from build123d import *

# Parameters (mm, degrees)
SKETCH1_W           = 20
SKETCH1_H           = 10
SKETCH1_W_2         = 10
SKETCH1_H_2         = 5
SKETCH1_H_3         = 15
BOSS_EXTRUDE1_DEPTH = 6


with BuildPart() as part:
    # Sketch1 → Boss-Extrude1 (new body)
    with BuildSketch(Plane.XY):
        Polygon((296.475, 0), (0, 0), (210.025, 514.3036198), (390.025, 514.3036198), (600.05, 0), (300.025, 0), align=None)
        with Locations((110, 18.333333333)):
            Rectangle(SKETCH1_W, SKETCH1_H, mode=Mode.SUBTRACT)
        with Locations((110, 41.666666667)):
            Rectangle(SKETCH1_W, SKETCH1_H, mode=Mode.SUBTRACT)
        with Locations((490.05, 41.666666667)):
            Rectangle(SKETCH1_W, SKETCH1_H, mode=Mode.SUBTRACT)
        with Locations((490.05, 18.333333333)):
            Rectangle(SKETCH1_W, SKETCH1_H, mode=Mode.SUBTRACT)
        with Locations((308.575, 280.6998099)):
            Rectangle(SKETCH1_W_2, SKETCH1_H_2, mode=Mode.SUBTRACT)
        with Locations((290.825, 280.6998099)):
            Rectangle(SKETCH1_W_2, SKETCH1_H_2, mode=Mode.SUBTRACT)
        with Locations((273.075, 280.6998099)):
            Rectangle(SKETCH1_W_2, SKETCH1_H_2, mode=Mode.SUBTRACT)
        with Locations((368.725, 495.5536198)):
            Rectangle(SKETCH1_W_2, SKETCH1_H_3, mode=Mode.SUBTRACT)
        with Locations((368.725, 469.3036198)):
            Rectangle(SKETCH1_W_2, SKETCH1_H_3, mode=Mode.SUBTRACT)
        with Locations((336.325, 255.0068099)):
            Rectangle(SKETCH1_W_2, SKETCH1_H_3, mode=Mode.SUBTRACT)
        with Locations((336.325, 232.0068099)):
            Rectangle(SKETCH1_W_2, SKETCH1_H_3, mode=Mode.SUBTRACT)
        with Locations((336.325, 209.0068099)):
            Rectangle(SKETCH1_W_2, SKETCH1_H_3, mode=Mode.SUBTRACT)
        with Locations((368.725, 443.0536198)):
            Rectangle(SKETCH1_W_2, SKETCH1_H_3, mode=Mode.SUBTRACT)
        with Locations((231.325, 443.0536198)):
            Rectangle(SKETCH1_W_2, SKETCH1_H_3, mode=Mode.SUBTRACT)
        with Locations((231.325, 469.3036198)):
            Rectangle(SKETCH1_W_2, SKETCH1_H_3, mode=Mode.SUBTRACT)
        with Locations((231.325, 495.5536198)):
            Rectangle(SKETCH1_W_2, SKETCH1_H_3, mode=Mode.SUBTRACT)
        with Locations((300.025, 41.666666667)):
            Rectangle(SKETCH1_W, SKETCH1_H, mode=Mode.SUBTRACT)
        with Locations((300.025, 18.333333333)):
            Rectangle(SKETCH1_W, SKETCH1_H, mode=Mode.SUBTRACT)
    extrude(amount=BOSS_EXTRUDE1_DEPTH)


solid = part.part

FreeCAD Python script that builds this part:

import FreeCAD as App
import Part
import Sketcher
from FreeCAD import Vector

doc = App.newDocument("Part")
body = doc.addObject("PartDesign::Body", "Body")

# Sketch on XY plane
sketch1 = body.newObject("Sketcher::SketchObject", "Sketch")
sketch1.AttachmentSupport = (doc.getObject("XY_Plane"), [""])
sketch1.MapMode = "FlatFace"
sketch1.addGeometry([
    Part.LineSegment(Vector(0, 0, 0), Vector(600, 0, 0)),  # 0
    Part.LineSegment(Vector(600, 0, 0), Vector(390, 514, 0)),  # 1
    Part.LineSegment(Vector(390, 514, 0), Vector(210, 514, 0)),  # 2
    Part.LineSegment(Vector(210, 514, 0), Vector(0, 0, 0)),  # 3
    Part.LineSegment(Vector(480, 13, 0), Vector(480, 23, 0)),  # 4
    Part.LineSegment(Vector(480, 23, 0), Vector(500, 23, 0)),  # 5
    Part.LineSegment(Vector(500, 23, 0), Vector(500, 13, 0)),  # 6
    Part.LineSegment(Vector(500, 13, 0), Vector(480, 13, 0)),  # 7
    Part.LineSegment(Vector(480, 37, 0), Vector(480, 47, 0)),  # 8
    Part.LineSegment(Vector(480, 47, 0), Vector(500, 47, 0)),  # 9
    Part.LineSegment(Vector(500, 47, 0), Vector(500, 37, 0)),  # 10
    Part.LineSegment(Vector(500, 37, 0), Vector(480, 37, 0)),  # 11
    Part.LineSegment(Vector(331, 202, 0), Vector(331, 217, 0)),  # 12
    Part.LineSegment(Vector(331, 217, 0), Vector(341, 217, 0)),  # 13
    Part.LineSegment(Vector(341, 217, 0), Vector(341, 202, 0)),  # 14
    Part.LineSegment(Vector(341, 202, 0), Vector(331, 202, 0)),  # 15
    Part.LineSegment(Vector(331, 225, 0), Vector(331, 240, 0)),  # 16
    Part.LineSegment(Vector(331, 240, 0), Vector(341, 240, 0)),  # 17
    Part.LineSegment(Vector(341, 240, 0), Vector(341, 225, 0)),  # 18
    Part.LineSegment(Vector(341, 225, 0), Vector(331, 225, 0)),  # 19
    Part.LineSegment(Vector(331, 248, 0), Vector(331, 263, 0)),  # 20
    Part.LineSegment(Vector(331, 263, 0), Vector(341, 263, 0)),  # 21
    Part.LineSegment(Vector(341, 263, 0), Vector(341, 248, 0)),  # 22
    Part.LineSegment(Vector(341, 248, 0), Vector(331, 248, 0)),  # 23
    Part.LineSegment(Vector(290, 13, 0), Vector(290, 23, 0)),  # 24
    Part.LineSegment(Vector(290, 23, 0), Vector(310, 23, 0)),  # 25
    Part.LineSegment(Vector(310, 23, 0), Vector(310, 13, 0)),  # 26
    Part.LineSegment(Vector(310, 13, 0), Vector(290, 13, 0)),  # 27
    Part.LineSegment(Vector(290, 37, 0), Vector(290, 47, 0)),  # 28
    Part.LineSegment(Vector(290, 47, 0), Vector(310, 47, 0)),  # 29
    Part.LineSegment(Vector(310, 47, 0), Vector(310, 37, 0)),  # 30
    Part.LineSegment(Vector(310, 37, 0), Vector(290, 37, 0)),  # 31
    Part.LineSegment(Vector(100, 13, 0), Vector(100, 23, 0)),  # 32
    Part.LineSegment(Vector(100, 23, 0), Vector(120, 23, 0)),  # 33
    Part.LineSegment(Vector(120, 23, 0), Vector(120, 13, 0)),  # 34
    Part.LineSegment(Vector(120, 13, 0), Vector(100, 13, 0)),  # 35
    Part.LineSegment(Vector(100, 37, 0), Vector(100, 47, 0)),  # 36
    Part.LineSegment(Vector(100, 47, 0), Vector(120, 47, 0)),  # 37
    Part.LineSegment(Vector(120, 47, 0), Vector(120, 37, 0)),  # 38
    Part.LineSegment(Vector(120, 37, 0), Vector(100, 37, 0)),  # 39
    Part.LineSegment(Vector(304, 278, 0), Vector(304, 283, 0)),  # 40
    Part.LineSegment(Vector(304, 283, 0), Vector(314, 283, 0)),  # 41
    Part.LineSegment(Vector(314, 283, 0), Vector(314, 278, 0)),  # 42
    Part.LineSegment(Vector(314, 278, 0), Vector(304, 278, 0)),  # 43
    Part.LineSegment(Vector(364, 436, 0), Vector(364, 451, 0)),  # 44
    Part.LineSegment(Vector(364, 451, 0), Vector(374, 451, 0)),  # 45
    Part.LineSegment(Vector(374, 451, 0), Vector(374, 436, 0)),  # 46
    Part.LineSegment(Vector(374, 436, 0), Vector(364, 436, 0)),  # 47
    Part.LineSegment(Vector(364, 462, 0), Vector(364, 477, 0)),  # 48
    Part.LineSegment(Vector(364, 477, 0), Vector(374, 477, 0)),  # 49
    Part.LineSegment(Vector(374, 477, 0), Vector(374, 462, 0)),  # 50
    Part.LineSegment(Vector(374, 462, 0), Vector(364, 462, 0)),  # 51
    Part.LineSegment(Vector(364, 488, 0), Vector(364, 503, 0)),  # 52
    Part.LineSegment(Vector(364, 503, 0), Vector(374, 503, 0)),  # 53
    Part.LineSegment(Vector(374, 503, 0), Vector(374, 488, 0)),  # 54
    Part.LineSegment(Vector(374, 488, 0), Vector(364, 488, 0)),  # 55
    Part.LineSegment(Vector(286, 278, 0), Vector(286, 283, 0)),  # 56
    Part.LineSegment(Vector(286, 283, 0), Vector(296, 283, 0)),  # 57
    Part.LineSegment(Vector(296, 283, 0), Vector(296, 278, 0)),  # 58
    Part.LineSegment(Vector(296, 278, 0), Vector(286, 278, 0)),  # 59
    Part.LineSegment(Vector(268, 278, 0), Vector(268, 283, 0)),  # 60
    Part.LineSegment(Vector(268, 283, 0), Vector(278, 283, 0)),  # 61
    Part.LineSegment(Vector(278, 283, 0), Vector(278, 278, 0)),  # 62
    Part.LineSegment(Vector(278, 278, 0), Vector(268, 278, 0)),  # 63
    Part.LineSegment(Vector(226, 436, 0), Vector(226, 451, 0)),  # 64
    Part.LineSegment(Vector(226, 451, 0), Vector(236, 451, 0)),  # 65
    Part.LineSegment(Vector(236, 451, 0), Vector(236, 436, 0)),  # 66
    Part.LineSegment(Vector(236, 436, 0), Vector(226, 436, 0)),  # 67
    Part.LineSegment(Vector(226, 462, 0), Vector(226, 477, 0)),  # 68
    Part.LineSegment(Vector(226, 477, 0), Vector(236, 477, 0)),  # 69
    Part.LineSegment(Vector(236, 477, 0), Vector(236, 462, 0)),  # 70
    Part.LineSegment(Vector(236, 462, 0), Vector(226, 462, 0)),  # 71
    Part.LineSegment(Vector(226, 488, 0), Vector(226, 503, 0)),  # 72
    Part.LineSegment(Vector(226, 503, 0), Vector(236, 503, 0)),  # 73
    Part.LineSegment(Vector(236, 503, 0), Vector(236, 488, 0)),  # 74
    Part.LineSegment(Vector(236, 488, 0), Vector(226, 488, 0)),  # 75
], False)
sketch1.addConstraint([
    Sketcher.Constraint("Coincident", 0, 2, 1, 1),
    Sketcher.Constraint("Coincident", 1, 2, 2, 1),
    Sketcher.Constraint("Coincident", 2, 2, 3, 1),
    Sketcher.Constraint("Coincident", 3, 2, 0, 1),
    Sketcher.Constraint("Coincident", 4, 2, 5, 1),
    Sketcher.Constraint("Coincident", 5, 2, 6, 1),
    Sketcher.Constraint("Coincident", 6, 2, 7, 1),
    Sketcher.Constraint("Coincident", 7, 2, 4, 1),
    Sketcher.Constraint("Coincident", 8, 2, 9, 1),
    Sketcher.Constraint("Coincident", 9, 2, 10, 1),
    Sketcher.Constraint("Coincident", 10, 2, 11, 1),
    Sketcher.Constraint("Coincident", 11, 2, 8, 1),
    Sketcher.Constraint("Coincident", 12, 2, 13, 1),
    Sketcher.Constraint("Coincident", 13, 2, 14, 1),
    Sketcher.Constraint("Coincident", 14, 2, 15, 1),
    Sketcher.Constraint("Coincident", 15, 2, 12, 1),
    Sketcher.Constraint("Coincident", 16, 2, 17, 1),
    Sketcher.Constraint("Coincident", 17, 2, 18, 1),
    Sketcher.Constraint("Coincident", 18, 2, 19, 1),
    Sketcher.Constraint("Coincident", 19, 2, 16, 1),
    Sketcher.Constraint("Coincident", 20, 2, 21, 1),
    Sketcher.Constraint("Coincident", 21, 2, 22, 1),
    Sketcher.Constraint("Coincident", 22, 2, 23, 1),
    Sketcher.Constraint("Coincident", 23, 2, 20, 1),
    Sketcher.Constraint("Coincident", 24, 2, 25, 1),
    Sketcher.Constraint("Coincident", 25, 2, 26, 1),
    Sketcher.Constraint("Coincident", 26, 2, 27, 1),
    Sketcher.Constraint("Coincident", 27, 2, 24, 1),
    Sketcher.Constraint("Coincident", 28, 2, 29, 1),
    Sketcher.Constraint("Coincident", 29, 2, 30, 1),
    Sketcher.Constraint("Coincident", 30, 2, 31, 1),
    Sketcher.Constraint("Coincident", 31, 2, 28, 1),
    Sketcher.Constraint("Coincident", 32, 2, 33, 1),
    Sketcher.Constraint("Coincident", 33, 2, 34, 1),
    Sketcher.Constraint("Coincident", 34, 2, 35, 1),
    Sketcher.Constraint("Coincident", 35, 2, 32, 1),
    Sketcher.Constraint("Coincident", 36, 2, 37, 1),
    Sketcher.Constraint("Coincident", 37, 2, 38, 1),
    Sketcher.Constraint("Coincident", 38, 2, 39, 1),
    Sketcher.Constraint("Coincident", 39, 2, 36, 1),
    Sketcher.Constraint("Coincident", 40, 2, 41, 1),
    Sketcher.Constraint("Coincident", 41, 2, 42, 1),
    Sketcher.Constraint("Coincident", 42, 2, 43, 1),
    Sketcher.Constraint("Coincident", 43, 2, 40, 1),
    Sketcher.Constraint("Coincident", 44, 2, 45, 1),
    Sketcher.Constraint("Coincident", 45, 2, 46, 1),
    Sketcher.Constraint("Coincident", 46, 2, 47, 1),
    Sketcher.Constraint("Coincident", 47, 2, 44, 1),
    Sketcher.Constraint("Coincident", 48, 2, 49, 1),
    Sketcher.Constraint("Coincident", 49, 2, 50, 1),
    Sketcher.Constraint("Coincident", 50, 2, 51, 1),
    Sketcher.Constraint("Coincident", 51, 2, 48, 1),
    Sketcher.Constraint("Coincident", 52, 2, 53, 1),
    Sketcher.Constraint("Coincident", 53, 2, 54, 1),
    Sketcher.Constraint("Coincident", 54, 2, 55, 1),
    Sketcher.Constraint("Coincident", 55, 2, 52, 1),
    Sketcher.Constraint("Coincident", 56, 2, 57, 1),
    Sketcher.Constraint("Coincident", 57, 2, 58, 1),
    Sketcher.Constraint("Coincident", 58, 2, 59, 1),
    Sketcher.Constraint("Coincident", 59, 2, 56, 1),
    Sketcher.Constraint("Coincident", 60, 2, 61, 1),
    Sketcher.Constraint("Coincident", 61, 2, 62, 1),
    Sketcher.Constraint("Coincident", 62, 2, 63, 1),
    Sketcher.Constraint("Coincident", 63, 2, 60, 1),
    Sketcher.Constraint("Coincident", 64, 2, 65, 1),
    Sketcher.Constraint("Coincident", 65, 2, 66, 1),
    Sketcher.Constraint("Coincident", 66, 2, 67, 1),
    Sketcher.Constraint("Coincident", 67, 2, 64, 1),
    Sketcher.Constraint("Coincident", 68, 2, 69, 1),
    Sketcher.Constraint("Coincident", 69, 2, 70, 1),
    Sketcher.Constraint("Coincident", 70, 2, 71, 1),
    Sketcher.Constraint("Coincident", 71, 2, 68, 1),
    Sketcher.Constraint("Coincident", 72, 2, 73, 1),
    Sketcher.Constraint("Coincident", 73, 2, 74, 1),
    Sketcher.Constraint("Coincident", 74, 2, 75, 1),
    Sketcher.Constraint("Coincident", 75, 2, 72, 1),
    Sketcher.Constraint("Horizontal", 0),
    Sketcher.Constraint("Horizontal", 2),
    Sketcher.Constraint("Vertical", 4),
    Sketcher.Constraint("Horizontal", 5),
    Sketcher.Constraint("Vertical", 6),
    Sketcher.Constraint("Horizontal", 7),
    Sketcher.Constraint("Vertical", 8),
    Sketcher.Constraint("Horizontal", 9),
    Sketcher.Constraint("Vertical", 10),
    Sketcher.Constraint("Horizontal", 11),
    Sketcher.Constraint("Vertical", 12),
    Sketcher.Constraint("Horizontal", 13),
    Sketcher.Constraint("Vertical", 14),
    Sketcher.Constraint("Horizontal", 15),
    Sketcher.Constraint("Vertical", 16),
    Sketcher.Constraint("Horizontal", 17),
    Sketcher.Constraint("Vertical", 18),
    Sketcher.Constraint("Horizontal", 19),
    Sketcher.Constraint("Vertical", 20),
    Sketcher.Constraint("Horizontal", 21),
    Sketcher.Constraint("Vertical", 22),
    Sketcher.Constraint("Horizontal", 23),
    Sketcher.Constraint("Vertical", 24),
    Sketcher.Constraint("Horizontal", 25),
    Sketcher.Constraint("Vertical", 26),
    Sketcher.Constraint("Horizontal", 27),
    Sketcher.Constraint("Vertical", 28),
    Sketcher.Constraint("Horizontal", 29),
    Sketcher.Constraint("Vertical", 30),
    Sketcher.Constraint("Horizontal", 31),
    Sketcher.Constraint("Vertical", 32),
    Sketcher.Constraint("Horizontal", 33),
    Sketcher.Constraint("Vertical", 34),
    Sketcher.Constraint("Horizontal", 35),
    Sketcher.Constraint("Vertical", 36),
    Sketcher.Constraint("Horizontal", 37),
    Sketcher.Constraint("Vertical", 38),
    Sketcher.Constraint("Horizontal", 39),
    Sketcher.Constraint("Vertical", 40),
    Sketcher.Constraint("Horizontal", 41),
    Sketcher.Constraint("Vertical", 42),
    Sketcher.Constraint("Horizontal", 43),
    Sketcher.Constraint("Vertical", 44),
    Sketcher.Constraint("Horizontal", 45),
    Sketcher.Constraint("Vertical", 46),
    Sketcher.Constraint("Horizontal", 47),
    Sketcher.Constraint("Vertical", 48),
    Sketcher.Constraint("Horizontal", 49),
    Sketcher.Constraint("Vertical", 50),
    Sketcher.Constraint("Horizontal", 51),
    Sketcher.Constraint("Vertical", 52),
    Sketcher.Constraint("Horizontal", 53),
    Sketcher.Constraint("Vertical", 54),
    Sketcher.Constraint("Horizontal", 55),
    Sketcher.Constraint("Vertical", 56),
    Sketcher.Constraint("Horizontal", 57),
    Sketcher.Constraint("Vertical", 58),
    Sketcher.Constraint("Horizontal", 59),
    Sketcher.Constraint("Vertical", 60),
    Sketcher.Constraint("Horizontal", 61),
    Sketcher.Constraint("Vertical", 62),
    Sketcher.Constraint("Horizontal", 63),
    Sketcher.Constraint("Vertical", 64),
    Sketcher.Constraint("Horizontal", 65),
    Sketcher.Constraint("Vertical", 66),
    Sketcher.Constraint("Horizontal", 67),
    Sketcher.Constraint("Vertical", 68),
    Sketcher.Constraint("Horizontal", 69),
    Sketcher.Constraint("Vertical", 70),
    Sketcher.Constraint("Horizontal", 71),
    Sketcher.Constraint("Vertical", 72),
    Sketcher.Constraint("Horizontal", 73),
    Sketcher.Constraint("Vertical", 74),
    Sketcher.Constraint("Horizontal", 75),
    Sketcher.Constraint("Coincident", 3, 2, -1, 1),
    Sketcher.Constraint("Horizontal", 5, 2, 24, 2),
    Sketcher.Constraint("Horizontal", 7, 2, 26, 2),
    Sketcher.Constraint("Horizontal", 9, 2, 28, 2),
    Sketcher.Constraint("Horizontal", 11, 2, 30, 2),
    Sketcher.Constraint("Horizontal", 25, 2, 32, 2),
    Sketcher.Constraint("Horizontal", 27, 2, 34, 2),
    Sketcher.Constraint("Horizontal", 29, 2, 36, 2),
    Sketcher.Constraint("Horizontal", 31, 2, 38, 2),
    Sketcher.Constraint("Horizontal", 41, 2, 56, 2),
    Sketcher.Constraint("Horizontal", 43, 2, 58, 2),
    Sketcher.Constraint("Horizontal", 57, 2, 60, 2),
    Sketcher.Constraint("Horizontal", 59, 2, 62, 2),
    Sketcher.Constraint("Horizontal", 45, 2, 64, 2),
    Sketcher.Constraint("Horizontal", 47, 2, 66, 2),
    Sketcher.Constraint("Horizontal", 49, 2, 68, 2),
    Sketcher.Constraint("Horizontal", 51, 2, 70, 2),
    Sketcher.Constraint("Horizontal", 53, 2, 72, 2),
    Sketcher.Constraint("Horizontal", 55, 2, 74, 2),
    Sketcher.Constraint("Vertical", 7, 2, 8, 2),
    Sketcher.Constraint("Vertical", 6, 2, 9, 2),
    Sketcher.Constraint("Vertical", 15, 2, 16, 2),
    Sketcher.Constraint("Vertical", 14, 2, 17, 2),
    Sketcher.Constraint("Vertical", 19, 2, 20, 2),
    Sketcher.Constraint("Vertical", 18, 2, 21, 2),
    Sketcher.Constraint("Vertical", 27, 2, 28, 2),
    Sketcher.Constraint("Vertical", 26, 2, 29, 2),
    Sketcher.Constraint("Vertical", 35, 2, 36, 2),
    Sketcher.Constraint("Vertical", 34, 2, 37, 2),
    Sketcher.Constraint("Vertical", 47, 2, 48, 2),
    Sketcher.Constraint("Vertical", 46, 2, 49, 2),
    Sketcher.Constraint("Vertical", 51, 2, 52, 2),
    Sketcher.Constraint("Vertical", 50, 2, 53, 2),
    Sketcher.Constraint("Vertical", 67, 2, 68, 2),
    Sketcher.Constraint("Vertical", 66, 2, 69, 2),
    Sketcher.Constraint("Vertical", 71, 2, 72, 2),
    Sketcher.Constraint("Vertical", 70, 2, 73, 2),
    Sketcher.Constraint("Equal", 11, 25),
    Sketcher.Constraint("Equal", 31, 33),
    Sketcher.Constraint("Equal", 23, 41),
    Sketcher.Constraint("Equal", 43, 45),
    Sketcher.Constraint("Equal", 55, 57),
    Sketcher.Constraint("Equal", 59, 61),
    Sketcher.Constraint("Equal", 63, 65),
    Sketcher.Constraint("Equal", 75, 4),
    Sketcher.Constraint("Equal", 6, 8),
    Sketcher.Constraint("Equal", 14, 16),
    Sketcher.Constraint("Equal", 18, 20),
    Sketcher.Constraint("Equal", 22, 44),
    Sketcher.Constraint("Equal", 46, 48),
    Sketcher.Constraint("Equal", 50, 52),
    Sketcher.Constraint("Equal", 1, 3),
    Sketcher.Constraint("DistanceX", 2, 2, 2, 1, 180.0),
    Sketcher.Constraint("DistanceX", 5, 1, 5, 2, 20.0),
    Sketcher.Constraint("DistanceX", 13, 1, 13, 2, 10.0),
    Sketcher.Constraint("DistanceY", 12, 1, 12, 2, 15.0),
    Sketcher.Constraint("DistanceY", 40, 1, 40, 2, 5.0),
    Sketcher.Constraint("DistanceX", -1, 1, 32, 2, 100.0),
    Sketcher.Constraint("DistanceX", 0, 1, 0, 2, 600.05),
    Sketcher.Constraint("DistanceX", -1, 1, 4, 2, 480.05),
    Sketcher.Constraint("DistanceX", -1, 1, 12, 2, 331.325),
    Sketcher.Constraint("DistanceX", -1, 1, 24, 2, 290.025),
    Sketcher.Constraint("DistanceX", -1, 1, 40, 2, 303.575),
    Sketcher.Constraint("DistanceX", -1, 1, 44, 2, 363.725),
    Sketcher.Constraint("DistanceX", -1, 1, 56, 2, 285.825),
    Sketcher.Constraint("DistanceX", -1, 1, 60, 2, 268.075),
    Sketcher.Constraint("DistanceX", -1, 1, 64, 2, 226.325),
    Sketcher.Constraint("Distance", 1, 555.53462),
    Sketcher.Constraint("DistanceY", -1, 1, 12, 2, 216.50681),
    Sketcher.Constraint("DistanceY", -1, 1, 16, 2, 239.50681),
    Sketcher.Constraint("DistanceY", -1, 1, 20, 2, 262.50681),
    Sketcher.Constraint("DistanceY", -1, 1, 40, 2, 283.19981),
    Sketcher.Constraint("DistanceY", -1, 1, 44, 2, 450.55362),
    Sketcher.Constraint("DistanceY", -1, 1, 48, 2, 476.80362),
    Sketcher.Constraint("DistanceY", -1, 1, 52, 2, 503.05362),
    Sketcher.Constraint("DistanceY", -1, 1, 4, 2, 23.333333),
    Sketcher.Constraint("DistanceY", -1, 1, 8, 2, 46.666667),
])
pad1 = body.newObject("PartDesign::Pad", "Pad")
pad1.Profile = sketch1
pad1.Length = 6

doc.recompute()
